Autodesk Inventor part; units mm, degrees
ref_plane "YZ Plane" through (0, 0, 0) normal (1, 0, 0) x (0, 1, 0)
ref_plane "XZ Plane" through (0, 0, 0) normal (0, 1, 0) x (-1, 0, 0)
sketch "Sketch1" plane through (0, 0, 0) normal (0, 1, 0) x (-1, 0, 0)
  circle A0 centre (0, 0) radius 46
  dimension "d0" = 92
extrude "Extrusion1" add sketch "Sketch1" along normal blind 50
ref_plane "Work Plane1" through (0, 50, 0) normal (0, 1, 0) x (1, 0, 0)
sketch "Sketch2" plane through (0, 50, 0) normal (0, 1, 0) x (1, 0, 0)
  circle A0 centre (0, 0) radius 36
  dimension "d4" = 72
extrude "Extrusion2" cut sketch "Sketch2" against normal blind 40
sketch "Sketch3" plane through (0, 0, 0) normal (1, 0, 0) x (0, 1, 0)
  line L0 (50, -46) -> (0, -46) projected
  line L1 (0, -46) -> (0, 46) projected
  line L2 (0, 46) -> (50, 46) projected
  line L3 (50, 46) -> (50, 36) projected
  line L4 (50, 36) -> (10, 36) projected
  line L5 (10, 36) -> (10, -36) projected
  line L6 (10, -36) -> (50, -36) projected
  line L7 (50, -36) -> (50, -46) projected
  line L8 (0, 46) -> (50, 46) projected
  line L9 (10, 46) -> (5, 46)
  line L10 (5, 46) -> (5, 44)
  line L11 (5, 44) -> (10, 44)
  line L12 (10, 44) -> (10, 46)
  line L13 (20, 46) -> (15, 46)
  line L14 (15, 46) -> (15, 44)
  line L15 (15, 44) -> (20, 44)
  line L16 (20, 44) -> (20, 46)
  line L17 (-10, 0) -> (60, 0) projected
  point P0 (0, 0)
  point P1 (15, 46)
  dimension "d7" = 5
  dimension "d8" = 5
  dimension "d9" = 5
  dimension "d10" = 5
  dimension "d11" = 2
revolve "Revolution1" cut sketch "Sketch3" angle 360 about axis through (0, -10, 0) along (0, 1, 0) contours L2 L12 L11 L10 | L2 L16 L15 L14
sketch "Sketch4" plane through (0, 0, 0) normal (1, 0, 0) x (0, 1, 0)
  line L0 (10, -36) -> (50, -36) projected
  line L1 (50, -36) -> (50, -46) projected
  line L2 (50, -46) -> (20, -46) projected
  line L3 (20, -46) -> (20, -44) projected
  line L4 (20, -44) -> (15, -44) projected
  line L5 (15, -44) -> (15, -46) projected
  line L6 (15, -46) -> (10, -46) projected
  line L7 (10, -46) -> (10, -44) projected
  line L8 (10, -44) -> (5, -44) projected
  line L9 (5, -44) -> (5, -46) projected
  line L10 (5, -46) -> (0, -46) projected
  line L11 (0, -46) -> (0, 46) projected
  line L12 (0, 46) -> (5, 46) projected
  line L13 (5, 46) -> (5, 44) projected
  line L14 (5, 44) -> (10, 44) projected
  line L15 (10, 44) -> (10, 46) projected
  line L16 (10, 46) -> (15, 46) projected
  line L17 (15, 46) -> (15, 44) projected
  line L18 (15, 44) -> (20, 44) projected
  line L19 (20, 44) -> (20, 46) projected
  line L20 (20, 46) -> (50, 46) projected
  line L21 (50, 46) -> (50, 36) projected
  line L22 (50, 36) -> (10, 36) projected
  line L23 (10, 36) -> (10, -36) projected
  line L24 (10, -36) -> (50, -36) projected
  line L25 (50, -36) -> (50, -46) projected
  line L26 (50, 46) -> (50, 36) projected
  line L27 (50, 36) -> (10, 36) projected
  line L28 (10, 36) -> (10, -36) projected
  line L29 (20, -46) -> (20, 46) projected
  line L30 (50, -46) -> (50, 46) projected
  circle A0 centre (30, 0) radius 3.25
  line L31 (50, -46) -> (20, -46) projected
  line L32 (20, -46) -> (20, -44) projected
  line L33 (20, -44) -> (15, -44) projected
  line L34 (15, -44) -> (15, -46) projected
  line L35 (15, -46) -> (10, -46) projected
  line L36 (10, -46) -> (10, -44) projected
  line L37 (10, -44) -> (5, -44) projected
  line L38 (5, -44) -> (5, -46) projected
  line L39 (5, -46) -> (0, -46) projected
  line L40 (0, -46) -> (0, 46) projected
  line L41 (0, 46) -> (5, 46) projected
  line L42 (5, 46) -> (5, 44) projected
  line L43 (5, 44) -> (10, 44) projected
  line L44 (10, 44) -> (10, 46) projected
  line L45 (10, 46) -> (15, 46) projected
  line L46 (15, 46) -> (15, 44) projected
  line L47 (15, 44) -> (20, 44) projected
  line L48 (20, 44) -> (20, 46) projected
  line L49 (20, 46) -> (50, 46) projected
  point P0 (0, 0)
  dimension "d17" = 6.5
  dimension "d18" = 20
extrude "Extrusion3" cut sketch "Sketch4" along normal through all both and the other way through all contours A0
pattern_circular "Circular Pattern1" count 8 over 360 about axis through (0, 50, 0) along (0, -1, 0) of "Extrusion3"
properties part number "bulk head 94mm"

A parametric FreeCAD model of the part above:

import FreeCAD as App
import Part
import Sketcher

V = App.Vector
Q = App.Units.Quantity

doc = App.newDocument("Part")
params = doc.addObject("Spreadsheet::Sheet", "Params")
for row, (alias, value) in enumerate([
    ("sketch1_diameter", "92 mm"),
    ("pad1_length", "50 mm"),
    ("sketch2_diameter", "72 mm"),
    ("pocket1_length", "40 mm"),
    ("sketch3_width", "5 mm"),
    ("sketch3_height", "2 mm"),
    ("groove_angle", "360 deg"),
    ("sketch4_diameter", "6.5 mm"),
], start=1):
    params.set(f"A{row}", alias)
    params.set(f"B{row}", "=" + value)
    params.setAlias(f"B{row}", alias)

body = doc.addObject("PartDesign::Body", "Body")

sketch1 = body.newObject("Sketcher::SketchObject", "Sketch")
sketch1.AttachmentSupport = (doc.getObject("XZ_Plane"), [""])
sketch1.MapMode = "FlatFace"
sketch1.addGeometry(Part.Circle(V(0, 0, 0), V(0, 0, 1), 46), False)
sketch1.addConstraint([
    Sketcher.Constraint("Coincident", 0, 3, -1, 1),
    Sketcher.Constraint("Diameter", 0, Q("92 mm")),
])
sketch1.setExpression("Constraints[1]", "Params.sketch1_diameter")
pad1 = body.newObject("PartDesign::Pad", "Pad")
pad1.Profile = sketch1
pad1.setExpression("Length", "Params.pad1_length")
pad1.Reversed = True

sketch2 = body.newObject("Sketcher::SketchObject", "Sketch001")
sketch2.AttachmentSupport = (doc.getObject("XZ_Plane"), [""])
sketch2.MapMode = "FlatFace"
sketch2.AttachmentOffset = App.Placement(V(0, 0, -50), App.Rotation())
sketch2.addGeometry(Part.Circle(V(0, 0, 0), V(0, 0, 1), 36), False)
sketch2.addConstraint([
    Sketcher.Constraint("Coincident", 0, 3, -1, 1),
    Sketcher.Constraint("Diameter", 0, Q("72 mm")),
])
sketch2.setExpression("Constraints[1]", "Params.sketch2_diameter")
pocket1 = body.newObject("PartDesign::Pocket", "Pocket")
pocket1.Profile = sketch2
pocket1.setExpression("Length", "Params.pocket1_length")
pocket1.Reversed = True

sketch3 = body.newObject("Sketcher::SketchObject", "Sketch002")
sketch3.AttachmentSupport = (doc.getObject("YZ_Plane"), [""])
sketch3.MapMode = "FlatFace"
sketch3.addGeometry([
    Part.LineSegment(V(10, 46, 0), V(5, 46, 0)),
    Part.LineSegment(V(5, 46, 0), V(5, 44, 0)),
    Part.LineSegment(V(5, 44, 0), V(10, 44, 0)),
    Part.LineSegment(V(10, 44, 0), V(10, 46, 0)),
    Part.LineSegment(V(20, 46, 0), V(15, 46, 0)),
    Part.LineSegment(V(15, 46, 0), V(15, 44, 0)),
    Part.LineSegment(V(15, 44, 0), V(20, 44, 0)),
    Part.LineSegment(V(20, 44, 0), V(20, 46, 0)),
], False)
sketch3.addConstraint([
    Sketcher.Constraint("Coincident", 0, 2, 1, 1),
    Sketcher.Constraint("Coincident", 1, 2, 2, 1),
    Sketcher.Constraint("Coincident", 2, 2, 3, 1),
    Sketcher.Constraint("Coincident", 3, 2, 0, 1),
    Sketcher.Constraint("Coincident", 4, 2, 5, 1),
    Sketcher.Constraint("Coincident", 5, 2, 6, 1),
    Sketcher.Constraint("Coincident", 6, 2, 7, 1),
    Sketcher.Constraint("Coincident", 7, 2, 4, 1),
    Sketcher.Constraint("Horizontal", 0),
    Sketcher.Constraint("Vertical", 1),
    Sketcher.Constraint("Horizontal", 2),
    Sketcher.Constraint("Vertical", 3),
    Sketcher.Constraint("Horizontal", 4),
    Sketcher.Constraint("Vertical", 5),
    Sketcher.Constraint("Horizontal", 6),
    Sketcher.Constraint("Vertical", 7),
    Sketcher.Constraint("Horizontal", 3, 2, 4, 2),
    Sketcher.Constraint("Horizontal", 2, 2, 5, 2),
    Sketcher.Constraint("Equal", 2, 4),
    Sketcher.Constraint("DistanceX", 0, 2, 0, 1, Q("5 mm")),
    Sketcher.Constraint("DistanceY", 1, 2, 1, 1, Q("2 mm")),
    Sketcher.Constraint("DistanceX", -1, 1, 0, 2, Q("5 mm")),
    Sketcher.Constraint("DistanceX", 3, 2, 4, 2, Q("5 mm")),
    Sketcher.Constraint("DistanceY", -1, 1, 0, 2, Q("46 mm")),
])
sketch3.setExpression("Constraints[19]", "Params.sketch3_width")
sketch3.setExpression("Constraints[20]", "Params.sketch3_height")
groove = body.newObject("PartDesign::Groove", "Groove")
groove.Profile = sketch3
groove.ReferenceAxis = (sketch3, ["H_Axis"])
groove.setExpression("Angle", "Params.groove_angle")

sketch4 = body.newObject("Sketcher::SketchObject", "Sketch003")
sketch4.AttachmentSupport = (doc.getObject("YZ_Plane"), [""])
sketch4.MapMode = "FlatFace"
sketch4.addGeometry(Part.Circle(V(30, 0, 0), V(0, 0, 1), 3.2), False)
sketch4.addConstraint([
    Sketcher.Constraint("PointOnObject", 0, 3, -1),
    Sketcher.Constraint("Diameter", 0, Q("6.5 mm")),
    Sketcher.Constraint("DistanceX", -1, 1, 0, 3, Q("30 mm")),
])
sketch4.setExpression("Constraints[1]", "Params.sketch4_diameter")
pocket2 = body.newObject("PartDesign::Pocket", "Pocket001")
pocket2.Profile = sketch4
pocket2.Type = "ThroughAll"
pocket2.Midplane = True
doc.recompute()

polarpattern = body.newObject("PartDesign::PolarPattern", "PolarPattern")
polarpattern.Originals = [pocket2]
polarpattern.Axis = (doc.getObject("Y_Axis"), [""])
polarpattern.Angle = 360
polarpattern.Occurrences = 8
body.Tip = polarpattern

doc.recompute()
